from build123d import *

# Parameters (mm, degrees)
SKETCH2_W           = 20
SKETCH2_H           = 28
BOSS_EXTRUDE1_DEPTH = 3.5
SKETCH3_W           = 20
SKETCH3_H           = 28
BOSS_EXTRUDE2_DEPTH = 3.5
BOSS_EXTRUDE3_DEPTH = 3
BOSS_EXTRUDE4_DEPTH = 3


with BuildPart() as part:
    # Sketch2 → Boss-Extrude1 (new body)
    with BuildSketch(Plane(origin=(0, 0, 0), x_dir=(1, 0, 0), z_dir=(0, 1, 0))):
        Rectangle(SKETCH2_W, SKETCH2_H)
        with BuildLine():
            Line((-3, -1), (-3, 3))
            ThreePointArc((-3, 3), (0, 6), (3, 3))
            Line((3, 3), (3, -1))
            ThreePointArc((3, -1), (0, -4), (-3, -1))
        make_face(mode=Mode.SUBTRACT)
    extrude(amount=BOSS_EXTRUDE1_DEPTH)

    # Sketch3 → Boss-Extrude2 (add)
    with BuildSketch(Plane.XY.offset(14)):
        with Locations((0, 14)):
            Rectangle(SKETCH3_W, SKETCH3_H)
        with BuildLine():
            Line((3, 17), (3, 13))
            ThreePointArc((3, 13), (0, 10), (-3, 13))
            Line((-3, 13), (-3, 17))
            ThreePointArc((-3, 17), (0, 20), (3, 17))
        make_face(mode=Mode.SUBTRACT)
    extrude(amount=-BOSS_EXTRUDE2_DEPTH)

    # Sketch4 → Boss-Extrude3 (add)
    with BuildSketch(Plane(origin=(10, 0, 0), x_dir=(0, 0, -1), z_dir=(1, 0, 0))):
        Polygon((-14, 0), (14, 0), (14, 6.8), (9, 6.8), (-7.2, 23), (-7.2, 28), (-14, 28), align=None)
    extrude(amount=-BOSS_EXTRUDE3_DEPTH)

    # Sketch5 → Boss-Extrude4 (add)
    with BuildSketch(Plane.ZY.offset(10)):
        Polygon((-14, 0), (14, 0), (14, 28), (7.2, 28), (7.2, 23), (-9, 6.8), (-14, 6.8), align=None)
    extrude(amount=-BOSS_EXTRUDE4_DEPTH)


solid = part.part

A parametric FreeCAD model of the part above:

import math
import FreeCAD as App
import Part
import Sketcher

doc = App.newDocument("Part")
body = doc.addObject("PartDesign::Body", "Body")

# Sketch on XZ plane
sketch1 = body.newObject("Sketcher::SketchObject", "Sketch")
sketch1.AttachmentSupport = (doc.getObject("XZ_Plane"), [""])
sketch1.MapMode = "FlatFace"
sketch1.addGeometry(Part.LineSegment(App.Vector(-10, -14, 0), App.Vector(-10, 14, 0)), False)
sketch1.addGeometry(Part.LineSegment(App.Vector(-10, 14, 0), App.Vector(10, 14, 0)), False)
sketch1.addGeometry(Part.LineSegment(App.Vector(10, 14, 0), App.Vector(10, -14, 0)), False)
sketch1.addGeometry(Part.LineSegment(App.Vector(10, -14, 0), App.Vector(-10, -14, 0)), False)
sketch1.addGeometry(Part.ArcOfCircle(Part.Circle(App.Vector(0, 1, 0), App.Vector(0, 0, 1), 3), math.radians(0), math.radians(180)), False)
sketch1.addGeometry(Part.LineSegment(App.Vector(-3, 1, 0), App.Vector(-3, -3, 0)), False)
sketch1.addGeometry(Part.ArcOfCircle(Part.Circle(App.Vector(0, -3, 0), App.Vector(0, 0, 1), 3), math.radians(180), math.radians(360)), False)
sketch1.addGeometry(Part.LineSegment(App.Vector(3, -3, 0), App.Vector(3, 1, 0)), False)
sketch1.addConstraint(Sketcher.Constraint("Coincident", 0, 2, 1, 1))
sketch1.addConstraint(Sketcher.Constraint("Coincident", 1, 2, 2, 1))
sketch1.addConstraint(Sketcher.Constraint("Coincident", 2, 2, 3, 1))
sketch1.addConstraint(Sketcher.Constraint("Coincident", 3, 2, 0, 1))
sketch1.addConstraint(Sketcher.Constraint("Tangent", 4, 2, 5, 1))
sketch1.addConstraint(Sketcher.Constraint("Tangent", 5, 2, 6, 1))
sketch1.addConstraint(Sketcher.Constraint("Tangent", 6, 2, 7, 1))
sketch1.addConstraint(Sketcher.Constraint("Tangent", 7, 2, 4, 1))
sketch1.addConstraint(Sketcher.Constraint("Vertical", 0))
sketch1.addConstraint(Sketcher.Constraint("Horizontal", 1))
sketch1.addConstraint(Sketcher.Constraint("Vertical", 2))
sketch1.addConstraint(Sketcher.Constraint("Horizontal", 3))
sketch1.addConstraint(Sketcher.Constraint("Vertical", 5))
sketch1.addConstraint(Sketcher.Constraint("Vertical", 7))
sketch1.addConstraint(Sketcher.Constraint("Symmetric", 0, 2, 2, 2, -1, 1))
sketch1.addConstraint(Sketcher.Constraint("PointOnObject", 4, 3, -2))
sketch1.addConstraint(Sketcher.Constraint("Radius", 4, 3.0))
sketch1.addConstraint(Sketcher.Constraint("DistanceX", 1, 1, 1, 2, 20.0))
sketch1.addConstraint(Sketcher.Constraint("DistanceY", 0, 1, 0, 2, 28.0))
sketch1.addConstraint(Sketcher.Constraint("DistanceY", 5, 2, 5, 1, 4.0))
sketch1.addConstraint(Sketcher.Constraint("DistanceY", -1, 1, 4, 3, 1.0))
pad1 = body.newObject("PartDesign::Pad", "Pad")
pad1.Profile = sketch1
pad1.Length = 3.5
pad1.Reversed = True

# Sketch on XY plane
sketch2 = body.newObject("Sketcher::SketchObject", "Sketch001")
sketch2.AttachmentSupport = (doc.getObject("XY_Plane"), [""])
sketch2.MapMode = "FlatFace"
sketch2.AttachmentOffset = App.Placement(App.Vector(0, 0, 14), App.Rotation())
sketch2.addGeometry(Part.LineSegment(App.Vector(-10, 28, 0), App.Vector(-10, 0, 0)), False)
sketch2.addGeometry(Part.LineSegment(App.Vector(-10, 0, 0), App.Vector(10, 0, 0)), False)
sketch2.addGeometry(Part.LineSegment(App.Vector(10, 0, 0), App.Vector(10, 28, 0)), False)
sketch2.addGeometry(Part.LineSegment(App.Vector(10, 28, 0), App.Vector(-10, 28, 0)), False)
sketch2.addGeometry(Part.ArcOfCircle(Part.Circle(App.Vector(0, 17, 0), App.Vector(0, 0, 1), 3), math.radians(0), math.radians(180)), False)
sketch2.addGeometry(Part.LineSegment(App.Vector(3, 17, 0), App.Vector(3, 13, 0)), False)
sketch2.addGeometry(Part.ArcOfCircle(Part.Circle(App.Vector(0, 13, 0), App.Vector(0, 0, 1), 3), math.radians(180), math.radians(360)), False)
sketch2.addGeometry(Part.LineSegment(App.Vector(-3, 13, 0), App.Vector(-3, 17, 0)), False)
sketch2.addConstraint(Sketcher.Constraint("Coincident", 0, 2, 1, 1))
sketch2.addConstraint(Sketcher.Constraint("Coincident", 1, 2, 2, 1))
sketch2.addConstraint(Sketcher.Constraint("Coincident", 2, 2, 3, 1))
sketch2.addConstraint(Sketcher.Constraint("Coincident", 3, 2, 0, 1))
sketch2.addConstraint(Sketcher.Constraint("Tangent", 4, 1, 5, 1))
sketch2.addConstraint(Sketcher.Constraint("Tangent", 5, 2, 6, 2))
sketch2.addConstraint(Sketcher.Constraint("Tangent", 6, 1, 7, 1))
sketch2.addConstraint(Sketcher.Constraint("Tangent", 7, 2, 4, 2))
sketch2.addConstraint(Sketcher.Constraint("Vertical", 0))
sketch2.addConstraint(Sketcher.Constraint("Horizontal", 1))
sketch2.addConstraint(Sketcher.Constraint("Vertical", 2))
sketch2.addConstraint(Sketcher.Constraint("Horizontal", 3))
sketch2.addConstraint(Sketcher.Constraint("Vertical", 5))
sketch2.addConstraint(Sketcher.Constraint("Vertical", 7))
sketch2.addConstraint(Sketcher.Constraint("Symmetric", 0, 2, 1, 2, -1, 1))
sketch2.addConstraint(Sketcher.Constraint("PointOnObject", 4, 3, -2))
sketch2.addConstraint(Sketcher.Constraint("Radius", 4, 3.0))
sketch2.addConstraint(Sketcher.Constraint("DistanceX", 1, 1, 1, 2, 20.0))
sketch2.addConstraint(Sketcher.Constraint("DistanceY", 0, 2, 0, 1, 28.0))
sketch2.addConstraint(Sketcher.Constraint("DistanceY", 5, 2, 5, 1, 4.0))
sketch2.addConstraint(Sketcher.Constraint("DistanceY", -1, 1, 4, 3, 17.0))
pad2 = body.newObject("PartDesign::Pad", "Pad001")
pad2.Profile = sketch2
pad2.Length = 3.5
pad2.Reversed = True

# Sketch on YZ plane
sketch3 = body.newObject("Sketcher::SketchObject", "Sketch002")
sketch3.AttachmentSupport = (doc.getObject("YZ_Plane"), [""])
sketch3.MapMode = "FlatFace"
sketch3.AttachmentOffset = App.Placement(App.Vector(0, 0, 10), App.Rotation())
sketch3.addGeometry(Part.LineSegment(App.Vector(0, 14, 0), App.Vector(0, -14, 0)), False)
sketch3.addGeometry(Part.LineSegment(App.Vector(0, -14, 0), App.Vector(7, -14, 0)), False)
sketch3.addGeometry(Part.LineSegment(App.Vector(7, -14, 0), App.Vector(7, -9, 0)), False)
sketch3.addGeometry(Part.LineSegment(App.Vector(7, -9, 0), App.Vector(23, 7, 0)), False)
sketch3.addGeometry(Part.LineSegment(App.Vector(23, 7, 0), App.Vector(28, 7, 0)), False)
sketch3.addGeometry(Part.LineSegment(App.Vector(28, 7, 0), App.Vector(28, 14, 0)), False)
sketch3.addGeometry(Part.LineSegment(App.Vector(28, 14, 0), App.Vector(0, 14, 0)), False)
sketch3.addConstraint(Sketcher.Constraint("Coincident", 0, 2, 1, 1))
sketch3.addConstraint(Sketcher.Constraint("Coincident", 1, 2, 2, 1))
sketch3.addConstraint(Sketcher.Constraint("Coincident", 2, 2, 3, 1))
sketch3.addConstraint(Sketcher.Constraint("Coincident", 3, 2, 4, 1))
sketch3.addConstraint(Sketcher.Constraint("Coincident", 4, 2, 5, 1))
sketch3.addConstraint(Sketcher.Constraint("Coincident", 5, 2, 6, 1))
sketch3.addConstraint(Sketcher.Constraint("Coincident", 6, 2, 0, 1))
sketch3.addConstraint(Sketcher.Constraint("Vertical", 0))
sketch3.addConstraint(Sketcher.Constraint("Horizontal", 1))
sketch3.addConstraint(Sketcher.Constraint("Vertical", 2))
sketch3.addConstraint(Sketcher.Constraint("Horizontal", 4))
sketch3.addConstraint(Sketcher.Constraint("Vertical", 5))
sketch3.addConstraint(Sketcher.Constraint("Horizontal", 6))
sketch3.addConstraint(Sketcher.Constraint("Symmetric", 0, 2, 6, 2, -1, 1))
sketch3.addConstraint(Sketcher.Constraint("Equal", 6, 0))
sketch3.addConstraint(Sketcher.Constraint("Equal", 4, 2))
sketch3.addConstraint(Sketcher.Constraint("Equal", 1, 5))
sketch3.addConstraint(Sketcher.Constraint("DistanceX", 4, 1, 4, 2, 5.0))
sketch3.addConstraint(Sketcher.Constraint("DistanceX", 6, 2, 6, 1, 28.0))
sketch3.addConstraint(Sketcher.Constraint("DistanceX", 1, 1, 1, 2, 6.8))
pad3 = body.newObject("PartDesign::Pad", "Pad002")
pad3.Profile = sketch3
pad3.Length = 3
pad3.Reversed = True

# Sketch on YZ plane
sketch4 = body.newObject("Sketcher::SketchObject", "Sketch003")
sketch4.AttachmentSupport = (doc.getObject("YZ_Plane"), [""])
sketch4.MapMode = "FlatFace"
sketch4.AttachmentOffset = App.Placement(App.Vector(0, 0, -10), App.Rotation())
sketch4.addGeometry(Part.LineSegment(App.Vector(0, -14, 0), App.Vector(0, 14, 0)), False)
sketch4.addGeometry(Part.LineSegment(App.Vector(0, 14, 0), App.Vector(28, 14, 0)), False)
sketch4.addGeometry(Part.LineSegment(App.Vector(28, 14, 0), App.Vector(28, 7, 0)), False)
sketch4.addGeometry(Part.LineSegment(App.Vector(28, 7, 0), App.Vector(23, 7, 0)), False)
sketch4.addGeometry(Part.LineSegment(App.Vector(23, 7, 0), App.Vector(7, -9, 0)), False)
sketch4.addGeometry(Part.LineSegment(App.Vector(7, -9, 0), App.Vector(7, -14, 0)), False)
sketch4.addGeometry(Part.LineSegment(App.Vector(7, -14, 0), App.Vector(0, -14, 0)), False)
sketch4.addConstraint(Sketcher.Constraint("Coincident", 0, 2, 1, 1))
sketch4.addConstraint(Sketcher.Constraint("Coincident", 1, 2, 2, 1))
sketch4.addConstraint(Sketcher.Constraint("Coincident", 2, 2, 3, 1))
sketch4.addConstraint(Sketcher.Constraint("Coincident", 3, 2, 4, 1))
sketch4.addConstraint(Sketcher.Constraint("Coincident", 4, 2, 5, 1))
sketch4.addConstraint(Sketcher.Constraint("Coincident", 5, 2, 6, 1))
sketch4.addConstraint(Sketcher.Constraint("Coincident", 6, 2, 0, 1))
sketch4.addConstraint(Sketcher.Constraint("Vertical", 0))
sketch4.addConstraint(Sketcher.Constraint("Horizontal", 1))
sketch4.addConstraint(Sketcher.Constraint("Vertical", 2))
sketch4.addConstraint(Sketcher.Constraint("Horizontal", 3))
sketch4.addConstraint(Sketcher.Constraint("Vertical", 5))
sketch4.addConstraint(Sketcher.Constraint("Horizontal", 6))
sketch4.addConstraint(Sketcher.Constraint("Symmetric", 0, 2, 6, 2, -1, 1))
sketch4.addConstraint(Sketcher.Constraint("Equal", 1, 0))
sketch4.addConstraint(Sketcher.Constraint("Equal", 6, 2))
sketch4.addConstraint(Sketcher.Constraint("Equal", 3, 5))
sketch4.addConstraint(Sketcher.Constraint("DistanceX", 1, 1, 1, 2, 28.0))
sketch4.addConstraint(Sketcher.Constraint("DistanceX", 3, 2, 3, 1, 5.0))
sketch4.addConstraint(Sketcher.Constraint("DistanceX", 6, 2, 6, 1, 6.8))
pad4 = body.newObject("PartDesign::Pad", "Pad003")
pad4.Profile = sketch4
pad4.Length = 3

doc.recompute()
